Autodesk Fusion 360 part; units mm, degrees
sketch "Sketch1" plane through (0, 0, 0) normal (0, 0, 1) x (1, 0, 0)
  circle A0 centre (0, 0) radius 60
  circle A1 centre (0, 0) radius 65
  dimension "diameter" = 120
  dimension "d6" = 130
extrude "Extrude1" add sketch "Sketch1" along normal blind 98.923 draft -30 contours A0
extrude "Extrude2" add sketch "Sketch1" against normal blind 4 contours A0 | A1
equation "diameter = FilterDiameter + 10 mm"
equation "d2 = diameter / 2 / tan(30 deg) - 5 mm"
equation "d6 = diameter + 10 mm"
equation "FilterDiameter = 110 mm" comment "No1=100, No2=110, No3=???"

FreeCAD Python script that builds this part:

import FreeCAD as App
import Part
import Sketcher

doc = App.newDocument("Part")
body = doc.addObject("PartDesign::Body", "Body")

sketch1 = body.newObject("Sketcher::SketchObject", "Sketch")
sketch1.AttachmentSupport = (doc.getObject("XY_Plane"), [""])
sketch1.MapMode = "FlatFace"
sketch1.addGeometry(Part.Circle(App.Vector(0, 0, 0), App.Vector(0, 0, 1), 60), False)
sketch1.addConstraint([
    Sketcher.Constraint("Coincident", 0, 3, -1, 1),
    Sketcher.Constraint("Diameter", 0, 120.0),
])
pad1 = body.newObject("PartDesign::Pad", "Pad")
pad1.Profile = sketch1
pad1.Length = 98.923
pad1.TaperAngle = -30

sketch2 = body.newObject("Sketcher::SketchObject", "Sketch001")
sketch2.AttachmentSupport = (doc.getObject("XY_Plane"), [""])
sketch2.MapMode = "FlatFace"
sketch2.addGeometry(Part.Circle(App.Vector(0, 0, 0), App.Vector(0, 0, 1), 65), False)
sketch2.addConstraint([
    Sketcher.Constraint("Coincident", 0, 3, -1, 1),
    Sketcher.Constraint("Diameter", 0, 130.0),
])
pad2 = body.newObject("PartDesign::Pad", "Pad001")
pad2.Profile = sketch2
pad2.Length = 4
pad2.Reversed = True

doc.recompute()
